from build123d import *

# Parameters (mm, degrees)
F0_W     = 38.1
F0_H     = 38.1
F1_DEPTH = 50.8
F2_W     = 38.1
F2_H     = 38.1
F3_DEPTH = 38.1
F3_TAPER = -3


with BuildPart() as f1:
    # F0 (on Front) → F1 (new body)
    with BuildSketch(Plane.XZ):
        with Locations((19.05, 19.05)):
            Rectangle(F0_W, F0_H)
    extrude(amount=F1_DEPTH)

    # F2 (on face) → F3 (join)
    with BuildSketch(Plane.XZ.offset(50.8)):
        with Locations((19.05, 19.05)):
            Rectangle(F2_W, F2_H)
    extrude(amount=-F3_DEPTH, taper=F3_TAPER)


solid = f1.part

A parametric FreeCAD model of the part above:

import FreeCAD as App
import Part
import Sketcher

V = App.Vector
Q = App.Units.Quantity

doc = App.newDocument("Part")
params = doc.addObject("Spreadsheet::Sheet", "Params")
for row, (alias, value) in enumerate([
    ("sketch1_width", "1.5 in"),
    ("pad1_length", "2 in"),
    ("sketch2_width", "1.5 in"),
    ("pad2_length", "1.5 in"),
    ("pad2_taper", "3 deg"),
], start=1):
    params.set(f"A{row}", alias)
    params.set(f"B{row}", "=" + value)
    params.setAlias(f"B{row}", alias)

body = doc.addObject("PartDesign::Body", "Body")

sketch1 = body.newObject("Sketcher::SketchObject", "Sketch")
sketch1.AttachmentSupport = (doc.getObject("XZ_Plane"), [""])
sketch1.MapMode = "FlatFace"
sketch1.addGeometry([
    Part.LineSegment(V(0, 38.1, 0), V(0, 0, 0)),
    Part.LineSegment(V(0, 0, 0), V(38.1, 0, 0)),
    Part.LineSegment(V(38.1, 0, 0), V(38.1, 38.1, 0)),
    Part.LineSegment(V(38.1, 38.1, 0), V(0, 38.1, 0)),
], False)
sketch1.addConstraint([
    Sketcher.Constraint("Coincident", 0, 2, 1, 1),
    Sketcher.Constraint("Coincident", 1, 2, 2, 1),
    Sketcher.Constraint("Coincident", 2, 2, 3, 1),
    Sketcher.Constraint("Coincident", 3, 2, 0, 1),
    Sketcher.Constraint("Vertical", 0),
    Sketcher.Constraint("Horizontal", 1),
    Sketcher.Constraint("Vertical", 2),
    Sketcher.Constraint("Horizontal", 3),
    Sketcher.Constraint("Coincident", 0, 2, -1, 1),
    Sketcher.Constraint("Equal", 3, 0),
    Sketcher.Constraint("DistanceX", 1, 1, 1, 2, Q("1.5 in")),
])
sketch1.setExpression("Constraints[10]", "Params.sketch1_width")
pad1 = body.newObject("PartDesign::Pad", "Pad")
pad1.Profile = sketch1
pad1.setExpression("Length", "Params.pad1_length")

sketch2 = body.newObject("Sketcher::SketchObject", "Sketch001")
sketch2.AttachmentSupport = (doc.getObject("XZ_Plane"), [""])
sketch2.MapMode = "FlatFace"
sketch2.AttachmentOffset = App.Placement(V(0, 0, 2 * 25.4), App.Rotation())
sketch2.addGeometry([
    Part.LineSegment(V(0, 38.1, 0), V(0, 0, 0)),
    Part.LineSegment(V(0, 0, 0), V(38.1, 0, 0)),
    Part.LineSegment(V(38.1, 0, 0), V(38.1, 38.1, 0)),
    Part.LineSegment(V(38.1, 38.1, 0), V(0, 38.1, 0)),
], False)
sketch2.addConstraint([
    Sketcher.Constraint("Coincident", 0, 2, 1, 1),
    Sketcher.Constraint("Coincident", 1, 2, 2, 1),
    Sketcher.Constraint("Coincident", 2, 2, 3, 1),
    Sketcher.Constraint("Coincident", 3, 2, 0, 1),
    Sketcher.Constraint("Vertical", 0),
    Sketcher.Constraint("Horizontal", 1),
    Sketcher.Constraint("Vertical", 2),
    Sketcher.Constraint("Horizontal", 3),
    Sketcher.Constraint("Coincident", 0, 2, -1, 1),
    Sketcher.Constraint("Equal", 3, 0),
    Sketcher.Constraint("DistanceX", 1, 1, 1, 2, Q("1.5 in")),
])
sketch2.setExpression("Constraints[10]", "Params.sketch2_width")
pad2 = body.newObject("PartDesign::Pad", "Pad001")
pad2.Profile = sketch2
pad2.setExpression("Length", "Params.pad2_length")
pad2.Reversed = True
pad2.setExpression("TaperAngle", "Params.pad2_taper")

doc.recompute()
